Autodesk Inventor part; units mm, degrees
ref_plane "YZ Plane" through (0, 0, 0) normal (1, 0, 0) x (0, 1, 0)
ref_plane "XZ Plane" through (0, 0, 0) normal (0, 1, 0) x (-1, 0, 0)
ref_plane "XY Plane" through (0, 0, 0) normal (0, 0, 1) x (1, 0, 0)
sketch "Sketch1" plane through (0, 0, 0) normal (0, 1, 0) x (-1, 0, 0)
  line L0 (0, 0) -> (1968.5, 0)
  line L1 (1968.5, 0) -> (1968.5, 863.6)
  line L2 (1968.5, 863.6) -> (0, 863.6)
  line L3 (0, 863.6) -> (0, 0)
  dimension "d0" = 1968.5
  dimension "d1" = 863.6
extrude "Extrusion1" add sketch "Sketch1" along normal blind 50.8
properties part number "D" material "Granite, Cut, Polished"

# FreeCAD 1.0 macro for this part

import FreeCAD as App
import Part
import Sketcher
from FreeCAD import Vector
Q = App.Units.Quantity


def add_polygon(sketch, points):
    """Adds a closed chain of lines whose ends are joined by coincident constraints."""
    first, n = sketch.GeometryCount, len(points)
    for a, b in zip(points, points[1:] + points[:1]):
        sketch.addGeometry(Part.LineSegment(App.Vector(*a, 0), App.Vector(*b, 0)), False)
    for i in range(n):
        sketch.addConstraint(Sketcher.Constraint("Coincident", first + i, 2, first + (i + 1) % n, 1))

doc = App.newDocument("Part")
body = doc.addObject("PartDesign::Body", "Body")

# Sketch on XZ plane
sketch1 = body.newObject("Sketcher::SketchObject", "Sketch")
sketch1.AttachmentSupport = (doc.getObject("XZ_Plane"), [""])
sketch1.MapMode = "FlatFace"
add_polygon(sketch1, [(0, 864), (0, 0), (-1968, 0), (-1968, 864)])  # lines 0-3
sketch1.addConstraint(Sketcher.Constraint("Vertical", 0))
sketch1.addConstraint(Sketcher.Constraint("Horizontal", 1))
sketch1.addConstraint(Sketcher.Constraint("Vertical", 2))
sketch1.addConstraint(Sketcher.Constraint("Horizontal", 3))
sketch1.addConstraint(Sketcher.Constraint("Coincident", 0, 2, -1, 1))
sketch1.addConstraint(Sketcher.Constraint("DistanceY", 0, 2, 0, 1, Q("34 in")))
sketch1.addConstraint(Sketcher.Constraint("DistanceX", 1, 2, 1, 1, Q("77.5 in")))
pad1 = body.newObject("PartDesign::Pad", "Pad")
pad1.Profile = sketch1
pad1.Length = Q("2 in")
pad1.Reversed = True

doc.recompute()
